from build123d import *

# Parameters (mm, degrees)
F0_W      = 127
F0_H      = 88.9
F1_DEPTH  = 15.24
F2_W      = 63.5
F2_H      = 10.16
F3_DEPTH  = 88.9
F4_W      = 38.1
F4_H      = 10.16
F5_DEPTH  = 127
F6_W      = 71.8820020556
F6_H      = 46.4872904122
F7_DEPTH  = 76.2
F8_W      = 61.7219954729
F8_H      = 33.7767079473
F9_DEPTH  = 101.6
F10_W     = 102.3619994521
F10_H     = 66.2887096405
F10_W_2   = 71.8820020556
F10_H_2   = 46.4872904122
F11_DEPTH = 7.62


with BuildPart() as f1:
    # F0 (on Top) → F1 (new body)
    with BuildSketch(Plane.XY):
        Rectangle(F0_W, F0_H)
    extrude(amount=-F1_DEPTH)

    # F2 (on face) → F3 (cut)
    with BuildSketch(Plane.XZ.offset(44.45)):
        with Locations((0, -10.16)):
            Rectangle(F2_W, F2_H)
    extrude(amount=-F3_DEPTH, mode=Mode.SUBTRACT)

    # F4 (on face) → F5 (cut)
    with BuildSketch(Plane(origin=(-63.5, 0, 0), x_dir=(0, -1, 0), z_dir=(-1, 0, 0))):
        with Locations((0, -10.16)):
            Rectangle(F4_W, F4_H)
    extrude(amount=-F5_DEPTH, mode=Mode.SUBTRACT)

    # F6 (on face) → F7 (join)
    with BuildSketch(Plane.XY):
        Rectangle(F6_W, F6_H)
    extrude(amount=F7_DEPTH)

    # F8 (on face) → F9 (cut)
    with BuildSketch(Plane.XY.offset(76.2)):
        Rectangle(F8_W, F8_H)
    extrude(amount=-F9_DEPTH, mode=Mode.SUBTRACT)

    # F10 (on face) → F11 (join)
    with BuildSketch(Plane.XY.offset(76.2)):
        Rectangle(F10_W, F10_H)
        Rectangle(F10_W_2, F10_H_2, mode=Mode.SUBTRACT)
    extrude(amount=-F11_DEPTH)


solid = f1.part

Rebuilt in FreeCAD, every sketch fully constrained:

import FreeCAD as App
import Part
import Sketcher
from FreeCAD import Vector
Q = App.Units.Quantity

doc = App.newDocument("Part")
body = doc.addObject("PartDesign::Body", "Body")

# Sketch on XY plane
sketch1 = doc.addObject("Sketcher::SketchObject", "Sketch")
body.addObject(sketch1)
sketch1.AttachmentSupport = (doc.XY_Plane, [""])
sketch1.MapMode = "FlatFace"
sketch1.addGeometry([
    Part.LineSegment(Vector(-64, 44, 0), Vector(-64, -44, 0)),
    Part.LineSegment(Vector(-64, -44, 0), Vector(64, -44, 0)),
    Part.LineSegment(Vector(64, -44, 0), Vector(64, 44, 0)),
    Part.LineSegment(Vector(64, 44, 0), Vector(-64, 44, 0)),
], False)
sketch1.addConstraint([
    Sketcher.Constraint("Coincident", 0, 2, 1, 1),
    Sketcher.Constraint("Coincident", 1, 2, 2, 1),
    Sketcher.Constraint("Coincident", 2, 2, 3, 1),
    Sketcher.Constraint("Coincident", 3, 2, 0, 1),
    Sketcher.Constraint("Vertical", 0),
    Sketcher.Constraint("Horizontal", 1),
    Sketcher.Constraint("Vertical", 2),
    Sketcher.Constraint("Horizontal", 3),
    Sketcher.Constraint("Symmetric", 0, 2, 2, 2, -1, 1),
    Sketcher.Constraint("DistanceX", 1, 1, 1, 2, Q("5 in")),
    Sketcher.Constraint("DistanceY", 0, 2, 0, 1, Q("3.5 in")),
])
pad1 = doc.addObject("PartDesign::Pad", "Pad")
body.addObject(pad1)
pad1.Profile = sketch1
pad1.Length = Q("0.6 in")
pad1.Reversed = True

# Sketch on XZ plane
sketch2 = doc.addObject("Sketcher::SketchObject", "Sketch001")
body.addObject(sketch2)
sketch2.AttachmentSupport = (doc.XZ_Plane, [""])
sketch2.MapMode = "FlatFace"
sketch2.AttachmentOffset = App.Placement(Vector(0, 0, 1.75 * 25.4), App.Rotation())
sketch2.addGeometry([
    Part.LineSegment(Vector(-32, -5, 0), Vector(-32, -15, 0)),
    Part.LineSegment(Vector(-32, -15, 0), Vector(32, -15, 0)),
    Part.LineSegment(Vector(32, -15, 0), Vector(32, -5, 0)),
    Part.LineSegment(Vector(32, -5, 0), Vector(-32, -5, 0)),
], False)
sketch2.addConstraint([
    Sketcher.Constraint("Coincident", 0, 2, 1, 1),
    Sketcher.Constraint("Coincident", 1, 2, 2, 1),
    Sketcher.Constraint("Coincident", 2, 2, 3, 1),
    Sketcher.Constraint("Coincident", 3, 2, 0, 1),
    Sketcher.Constraint("Vertical", 0),
    Sketcher.Constraint("Horizontal", 1),
    Sketcher.Constraint("Vertical", 2),
    Sketcher.Constraint("Horizontal", 3),
    Sketcher.Constraint("DistanceX", 1, 1, 1, 2, Q("2.5 in")),
    Sketcher.Constraint("DistanceY", 0, 2, 0, 1, Q("0.4 in")),
    Sketcher.Constraint("DistanceY", 0, 2, -1, 1, Q("0.6 in")),
    Sketcher.Constraint("DistanceX", 0, 2, -1, 1, Q("1.25 in")),
])
pocket1 = doc.addObject("PartDesign::Pocket", "Pocket")
body.addObject(pocket1)
pocket1.Profile = sketch2
pocket1.Length = Q("3.5 in")

# Sketch on YZ plane
sketch3 = doc.addObject("Sketcher::SketchObject", "Sketch002")
body.addObject(sketch3)
sketch3.AttachmentSupport = (doc.YZ_Plane, [""])
sketch3.MapMode = "FlatFace"
sketch3.AttachmentOffset = App.Placement(Vector(0, 0, -2.5 * 25.4), App.Rotation())
sketch3.addGeometry([
    Part.LineSegment(Vector(19, -5, 0), Vector(19, -15, 0)),
    Part.LineSegment(Vector(19, -15, 0), Vector(-19, -15, 0)),
    Part.LineSegment(Vector(-19, -15, 0), Vector(-19, -5, 0)),
    Part.LineSegment(Vector(-19, -5, 0), Vector(19, -5, 0)),
], False)
sketch3.addConstraint([
    Sketcher.Constraint("Coincident", 0, 2, 1, 1),
    Sketcher.Constraint("Coincident", 1, 2, 2, 1),
    Sketcher.Constraint("Coincident", 2, 2, 3, 1),
    Sketcher.Constraint("Coincident", 3, 2, 0, 1),
    Sketcher.Constraint("Vertical", 0),
    Sketcher.Constraint("Horizontal", 1),
    Sketcher.Constraint("Vertical", 2),
    Sketcher.Constraint("Horizontal", 3),
    Sketcher.Constraint("DistanceX", 1, 2, 1, 1, Q("1.5 in")),
    Sketcher.Constraint("DistanceY", 0, 2, 0, 1, Q("0.4 in")),
    Sketcher.Constraint("DistanceY", 0, 2, -1, 1, Q("0.6 in")),
    Sketcher.Constraint("DistanceX", -1, 1, 0, 2, Q("0.75 in")),
])
pocket2 = doc.addObject("PartDesign::Pocket", "Pocket001")
body.addObject(pocket2)
pocket2.Profile = sketch3
pocket2.Length = Q("5 in")
pocket2.Reversed = True

# Sketch on XY plane
sketch4 = doc.addObject("Sketcher::SketchObject", "Sketch003")
body.addObject(sketch4)
sketch4.AttachmentSupport = (doc.XY_Plane, [""])
sketch4.MapMode = "FlatFace"
sketch4.addGeometry([
    Part.LineSegment(Vector(-36, 23, 0), Vector(-36, -23, 0)),
    Part.LineSegment(Vector(-36, -23, 0), Vector(36, -23, 0)),
    Part.LineSegment(Vector(36, -23, 0), Vector(36, 23, 0)),
    Part.LineSegment(Vector(36, 23, 0), Vector(-36, 23, 0)),
], False)
sketch4.addConstraint([
    Sketcher.Constraint("Coincident", 0, 2, 1, 1),
    Sketcher.Constraint("Coincident", 1, 2, 2, 1),
    Sketcher.Constraint("Coincident", 2, 2, 3, 1),
    Sketcher.Constraint("Coincident", 3, 2, 0, 1),
    Sketcher.Constraint("Vertical", 0),
    Sketcher.Constraint("Horizontal", 1),
    Sketcher.Constraint("Vertical", 2),
    Sketcher.Constraint("Horizontal", 3),
    Sketcher.Constraint("Symmetric", 0, 2, 2, 2, -1, 1),
    Sketcher.Constraint("DistanceX", 1, 1, 1, 2, Q("2.8300001 in")),
    Sketcher.Constraint("DistanceY", 0, 2, 0, 1, 46.48729),
])
pad2 = doc.addObject("PartDesign::Pad", "Pad001")
body.addObject(pad2)
pad2.Profile = sketch4
pad2.Length = Q("3 in")

# Sketch on XY plane
sketch5 = doc.addObject("Sketcher::SketchObject", "Sketch004")
body.addObject(sketch5)
sketch5.AttachmentSupport = (doc.XY_Plane, [""])
sketch5.MapMode = "FlatFace"
sketch5.AttachmentOffset = App.Placement(Vector(0, 0, 3 * 25.4), App.Rotation())
sketch5.addGeometry([
    Part.LineSegment(Vector(-31, 17, 0), Vector(-31, -17, 0)),
    Part.LineSegment(Vector(-31, -17, 0), Vector(31, -17, 0)),
    Part.LineSegment(Vector(31, -17, 0), Vector(31, 17, 0)),
    Part.LineSegment(Vector(31, 17, 0), Vector(-31, 17, 0)),
], False)
sketch5.addConstraint([
    Sketcher.Constraint("Coincident", 0, 2, 1, 1),
    Sketcher.Constraint("Coincident", 1, 2, 2, 1),
    Sketcher.Constraint("Coincident", 2, 2, 3, 1),
    Sketcher.Constraint("Coincident", 3, 2, 0, 1),
    Sketcher.Constraint("Vertical", 0),
    Sketcher.Constraint("Horizontal", 1),
    Sketcher.Constraint("Vertical", 2),
    Sketcher.Constraint("Horizontal", 3),
    Sketcher.Constraint("Symmetric", 0, 2, 2, 2, -1, 1),
    Sketcher.Constraint("DistanceX", 1, 1, 1, 2, Q("2.4299998 in")),
    Sketcher.Constraint("DistanceY", 0, 2, 0, 1, 33.776708),
])
pocket3 = doc.addObject("PartDesign::Pocket", "Pocket002")
body.addObject(pocket3)
pocket3.Profile = sketch5
pocket3.Length = Q("4 in")

# Sketch on XY plane
sketch6 = doc.addObject("Sketcher::SketchObject", "Sketch005")
body.addObject(sketch6)
sketch6.AttachmentSupport = (doc.XY_Plane, [""])
sketch6.MapMode = "FlatFace"
sketch6.AttachmentOffset = App.Placement(Vector(0, 0, 3 * 25.4), App.Rotation())
sketch6.addGeometry([
    Part.LineSegment(Vector(-51, 33, 0), Vector(-51, -33, 0)),  # 0
    Part.LineSegment(Vector(-51, -33, 0), Vector(51, -33, 0)),  # 1
    Part.LineSegment(Vector(51, -33, 0), Vector(51, 33, 0)),  # 2
    Part.LineSegment(Vector(51, 33, 0), Vector(-51, 33, 0)),  # 3
    Part.LineSegment(Vector(36, -23, 0), Vector(-36, -23, 0)),  # 4
    Part.LineSegment(Vector(-36, -23, 0), Vector(-36, 23, 0)),  # 5
    Part.LineSegment(Vector(-36, 23, 0), Vector(36, 23, 0)),  # 6
    Part.LineSegment(Vector(36, 23, 0), Vector(36, -23, 0)),  # 7
], False)
sketch6.addConstraint([
    Sketcher.Constraint("Coincident", 0, 2, 1, 1),
    Sketcher.Constraint("Coincident", 1, 2, 2, 1),
    Sketcher.Constraint("Coincident", 2, 2, 3, 1),
    Sketcher.Constraint("Coincident", 3, 2, 0, 1),
    Sketcher.Constraint("Coincident", 4, 2, 5, 1),
    Sketcher.Constraint("Coincident", 5, 2, 6, 1),
    Sketcher.Constraint("Coincident", 6, 2, 7, 1),
    Sketcher.Constraint("Coincident", 7, 2, 4, 1),
    Sketcher.Constraint("Vertical", 0),
    Sketcher.Constraint("Horizontal", 1),
    Sketcher.Constraint("Vertical", 2),
    Sketcher.Constraint("Horizontal", 3),
    Sketcher.Constraint("Horizontal", 4),
    Sketcher.Constraint("Vertical", 5),
    Sketcher.Constraint("Horizontal", 6),
    Sketcher.Constraint("Vertical", 7),
    Sketcher.Constraint("Symmetric", 0, 2, 2, 2, -1, 1),
    Sketcher.Constraint("Symmetric", 4, 2, 6, 2, -1, 1),
    Sketcher.Constraint("DistanceX", 1, 1, 1, 2, Q("4.03 in")),
    Sketcher.Constraint("DistanceX", 4, 2, 4, 1, Q("2.8300001 in")),
    Sketcher.Constraint("DistanceY", 4, 2, 3, 2, Q("2.22 in")),
    Sketcher.Constraint("DistanceY", 0, 2, 0, 1, 66.28871),
])
pad3 = doc.addObject("PartDesign::Pad", "Pad002")
body.addObject(pad3)
pad3.Profile = sketch6
pad3.Length = Q("0.3 in")
pad3.Reversed = True

doc.recompute()
